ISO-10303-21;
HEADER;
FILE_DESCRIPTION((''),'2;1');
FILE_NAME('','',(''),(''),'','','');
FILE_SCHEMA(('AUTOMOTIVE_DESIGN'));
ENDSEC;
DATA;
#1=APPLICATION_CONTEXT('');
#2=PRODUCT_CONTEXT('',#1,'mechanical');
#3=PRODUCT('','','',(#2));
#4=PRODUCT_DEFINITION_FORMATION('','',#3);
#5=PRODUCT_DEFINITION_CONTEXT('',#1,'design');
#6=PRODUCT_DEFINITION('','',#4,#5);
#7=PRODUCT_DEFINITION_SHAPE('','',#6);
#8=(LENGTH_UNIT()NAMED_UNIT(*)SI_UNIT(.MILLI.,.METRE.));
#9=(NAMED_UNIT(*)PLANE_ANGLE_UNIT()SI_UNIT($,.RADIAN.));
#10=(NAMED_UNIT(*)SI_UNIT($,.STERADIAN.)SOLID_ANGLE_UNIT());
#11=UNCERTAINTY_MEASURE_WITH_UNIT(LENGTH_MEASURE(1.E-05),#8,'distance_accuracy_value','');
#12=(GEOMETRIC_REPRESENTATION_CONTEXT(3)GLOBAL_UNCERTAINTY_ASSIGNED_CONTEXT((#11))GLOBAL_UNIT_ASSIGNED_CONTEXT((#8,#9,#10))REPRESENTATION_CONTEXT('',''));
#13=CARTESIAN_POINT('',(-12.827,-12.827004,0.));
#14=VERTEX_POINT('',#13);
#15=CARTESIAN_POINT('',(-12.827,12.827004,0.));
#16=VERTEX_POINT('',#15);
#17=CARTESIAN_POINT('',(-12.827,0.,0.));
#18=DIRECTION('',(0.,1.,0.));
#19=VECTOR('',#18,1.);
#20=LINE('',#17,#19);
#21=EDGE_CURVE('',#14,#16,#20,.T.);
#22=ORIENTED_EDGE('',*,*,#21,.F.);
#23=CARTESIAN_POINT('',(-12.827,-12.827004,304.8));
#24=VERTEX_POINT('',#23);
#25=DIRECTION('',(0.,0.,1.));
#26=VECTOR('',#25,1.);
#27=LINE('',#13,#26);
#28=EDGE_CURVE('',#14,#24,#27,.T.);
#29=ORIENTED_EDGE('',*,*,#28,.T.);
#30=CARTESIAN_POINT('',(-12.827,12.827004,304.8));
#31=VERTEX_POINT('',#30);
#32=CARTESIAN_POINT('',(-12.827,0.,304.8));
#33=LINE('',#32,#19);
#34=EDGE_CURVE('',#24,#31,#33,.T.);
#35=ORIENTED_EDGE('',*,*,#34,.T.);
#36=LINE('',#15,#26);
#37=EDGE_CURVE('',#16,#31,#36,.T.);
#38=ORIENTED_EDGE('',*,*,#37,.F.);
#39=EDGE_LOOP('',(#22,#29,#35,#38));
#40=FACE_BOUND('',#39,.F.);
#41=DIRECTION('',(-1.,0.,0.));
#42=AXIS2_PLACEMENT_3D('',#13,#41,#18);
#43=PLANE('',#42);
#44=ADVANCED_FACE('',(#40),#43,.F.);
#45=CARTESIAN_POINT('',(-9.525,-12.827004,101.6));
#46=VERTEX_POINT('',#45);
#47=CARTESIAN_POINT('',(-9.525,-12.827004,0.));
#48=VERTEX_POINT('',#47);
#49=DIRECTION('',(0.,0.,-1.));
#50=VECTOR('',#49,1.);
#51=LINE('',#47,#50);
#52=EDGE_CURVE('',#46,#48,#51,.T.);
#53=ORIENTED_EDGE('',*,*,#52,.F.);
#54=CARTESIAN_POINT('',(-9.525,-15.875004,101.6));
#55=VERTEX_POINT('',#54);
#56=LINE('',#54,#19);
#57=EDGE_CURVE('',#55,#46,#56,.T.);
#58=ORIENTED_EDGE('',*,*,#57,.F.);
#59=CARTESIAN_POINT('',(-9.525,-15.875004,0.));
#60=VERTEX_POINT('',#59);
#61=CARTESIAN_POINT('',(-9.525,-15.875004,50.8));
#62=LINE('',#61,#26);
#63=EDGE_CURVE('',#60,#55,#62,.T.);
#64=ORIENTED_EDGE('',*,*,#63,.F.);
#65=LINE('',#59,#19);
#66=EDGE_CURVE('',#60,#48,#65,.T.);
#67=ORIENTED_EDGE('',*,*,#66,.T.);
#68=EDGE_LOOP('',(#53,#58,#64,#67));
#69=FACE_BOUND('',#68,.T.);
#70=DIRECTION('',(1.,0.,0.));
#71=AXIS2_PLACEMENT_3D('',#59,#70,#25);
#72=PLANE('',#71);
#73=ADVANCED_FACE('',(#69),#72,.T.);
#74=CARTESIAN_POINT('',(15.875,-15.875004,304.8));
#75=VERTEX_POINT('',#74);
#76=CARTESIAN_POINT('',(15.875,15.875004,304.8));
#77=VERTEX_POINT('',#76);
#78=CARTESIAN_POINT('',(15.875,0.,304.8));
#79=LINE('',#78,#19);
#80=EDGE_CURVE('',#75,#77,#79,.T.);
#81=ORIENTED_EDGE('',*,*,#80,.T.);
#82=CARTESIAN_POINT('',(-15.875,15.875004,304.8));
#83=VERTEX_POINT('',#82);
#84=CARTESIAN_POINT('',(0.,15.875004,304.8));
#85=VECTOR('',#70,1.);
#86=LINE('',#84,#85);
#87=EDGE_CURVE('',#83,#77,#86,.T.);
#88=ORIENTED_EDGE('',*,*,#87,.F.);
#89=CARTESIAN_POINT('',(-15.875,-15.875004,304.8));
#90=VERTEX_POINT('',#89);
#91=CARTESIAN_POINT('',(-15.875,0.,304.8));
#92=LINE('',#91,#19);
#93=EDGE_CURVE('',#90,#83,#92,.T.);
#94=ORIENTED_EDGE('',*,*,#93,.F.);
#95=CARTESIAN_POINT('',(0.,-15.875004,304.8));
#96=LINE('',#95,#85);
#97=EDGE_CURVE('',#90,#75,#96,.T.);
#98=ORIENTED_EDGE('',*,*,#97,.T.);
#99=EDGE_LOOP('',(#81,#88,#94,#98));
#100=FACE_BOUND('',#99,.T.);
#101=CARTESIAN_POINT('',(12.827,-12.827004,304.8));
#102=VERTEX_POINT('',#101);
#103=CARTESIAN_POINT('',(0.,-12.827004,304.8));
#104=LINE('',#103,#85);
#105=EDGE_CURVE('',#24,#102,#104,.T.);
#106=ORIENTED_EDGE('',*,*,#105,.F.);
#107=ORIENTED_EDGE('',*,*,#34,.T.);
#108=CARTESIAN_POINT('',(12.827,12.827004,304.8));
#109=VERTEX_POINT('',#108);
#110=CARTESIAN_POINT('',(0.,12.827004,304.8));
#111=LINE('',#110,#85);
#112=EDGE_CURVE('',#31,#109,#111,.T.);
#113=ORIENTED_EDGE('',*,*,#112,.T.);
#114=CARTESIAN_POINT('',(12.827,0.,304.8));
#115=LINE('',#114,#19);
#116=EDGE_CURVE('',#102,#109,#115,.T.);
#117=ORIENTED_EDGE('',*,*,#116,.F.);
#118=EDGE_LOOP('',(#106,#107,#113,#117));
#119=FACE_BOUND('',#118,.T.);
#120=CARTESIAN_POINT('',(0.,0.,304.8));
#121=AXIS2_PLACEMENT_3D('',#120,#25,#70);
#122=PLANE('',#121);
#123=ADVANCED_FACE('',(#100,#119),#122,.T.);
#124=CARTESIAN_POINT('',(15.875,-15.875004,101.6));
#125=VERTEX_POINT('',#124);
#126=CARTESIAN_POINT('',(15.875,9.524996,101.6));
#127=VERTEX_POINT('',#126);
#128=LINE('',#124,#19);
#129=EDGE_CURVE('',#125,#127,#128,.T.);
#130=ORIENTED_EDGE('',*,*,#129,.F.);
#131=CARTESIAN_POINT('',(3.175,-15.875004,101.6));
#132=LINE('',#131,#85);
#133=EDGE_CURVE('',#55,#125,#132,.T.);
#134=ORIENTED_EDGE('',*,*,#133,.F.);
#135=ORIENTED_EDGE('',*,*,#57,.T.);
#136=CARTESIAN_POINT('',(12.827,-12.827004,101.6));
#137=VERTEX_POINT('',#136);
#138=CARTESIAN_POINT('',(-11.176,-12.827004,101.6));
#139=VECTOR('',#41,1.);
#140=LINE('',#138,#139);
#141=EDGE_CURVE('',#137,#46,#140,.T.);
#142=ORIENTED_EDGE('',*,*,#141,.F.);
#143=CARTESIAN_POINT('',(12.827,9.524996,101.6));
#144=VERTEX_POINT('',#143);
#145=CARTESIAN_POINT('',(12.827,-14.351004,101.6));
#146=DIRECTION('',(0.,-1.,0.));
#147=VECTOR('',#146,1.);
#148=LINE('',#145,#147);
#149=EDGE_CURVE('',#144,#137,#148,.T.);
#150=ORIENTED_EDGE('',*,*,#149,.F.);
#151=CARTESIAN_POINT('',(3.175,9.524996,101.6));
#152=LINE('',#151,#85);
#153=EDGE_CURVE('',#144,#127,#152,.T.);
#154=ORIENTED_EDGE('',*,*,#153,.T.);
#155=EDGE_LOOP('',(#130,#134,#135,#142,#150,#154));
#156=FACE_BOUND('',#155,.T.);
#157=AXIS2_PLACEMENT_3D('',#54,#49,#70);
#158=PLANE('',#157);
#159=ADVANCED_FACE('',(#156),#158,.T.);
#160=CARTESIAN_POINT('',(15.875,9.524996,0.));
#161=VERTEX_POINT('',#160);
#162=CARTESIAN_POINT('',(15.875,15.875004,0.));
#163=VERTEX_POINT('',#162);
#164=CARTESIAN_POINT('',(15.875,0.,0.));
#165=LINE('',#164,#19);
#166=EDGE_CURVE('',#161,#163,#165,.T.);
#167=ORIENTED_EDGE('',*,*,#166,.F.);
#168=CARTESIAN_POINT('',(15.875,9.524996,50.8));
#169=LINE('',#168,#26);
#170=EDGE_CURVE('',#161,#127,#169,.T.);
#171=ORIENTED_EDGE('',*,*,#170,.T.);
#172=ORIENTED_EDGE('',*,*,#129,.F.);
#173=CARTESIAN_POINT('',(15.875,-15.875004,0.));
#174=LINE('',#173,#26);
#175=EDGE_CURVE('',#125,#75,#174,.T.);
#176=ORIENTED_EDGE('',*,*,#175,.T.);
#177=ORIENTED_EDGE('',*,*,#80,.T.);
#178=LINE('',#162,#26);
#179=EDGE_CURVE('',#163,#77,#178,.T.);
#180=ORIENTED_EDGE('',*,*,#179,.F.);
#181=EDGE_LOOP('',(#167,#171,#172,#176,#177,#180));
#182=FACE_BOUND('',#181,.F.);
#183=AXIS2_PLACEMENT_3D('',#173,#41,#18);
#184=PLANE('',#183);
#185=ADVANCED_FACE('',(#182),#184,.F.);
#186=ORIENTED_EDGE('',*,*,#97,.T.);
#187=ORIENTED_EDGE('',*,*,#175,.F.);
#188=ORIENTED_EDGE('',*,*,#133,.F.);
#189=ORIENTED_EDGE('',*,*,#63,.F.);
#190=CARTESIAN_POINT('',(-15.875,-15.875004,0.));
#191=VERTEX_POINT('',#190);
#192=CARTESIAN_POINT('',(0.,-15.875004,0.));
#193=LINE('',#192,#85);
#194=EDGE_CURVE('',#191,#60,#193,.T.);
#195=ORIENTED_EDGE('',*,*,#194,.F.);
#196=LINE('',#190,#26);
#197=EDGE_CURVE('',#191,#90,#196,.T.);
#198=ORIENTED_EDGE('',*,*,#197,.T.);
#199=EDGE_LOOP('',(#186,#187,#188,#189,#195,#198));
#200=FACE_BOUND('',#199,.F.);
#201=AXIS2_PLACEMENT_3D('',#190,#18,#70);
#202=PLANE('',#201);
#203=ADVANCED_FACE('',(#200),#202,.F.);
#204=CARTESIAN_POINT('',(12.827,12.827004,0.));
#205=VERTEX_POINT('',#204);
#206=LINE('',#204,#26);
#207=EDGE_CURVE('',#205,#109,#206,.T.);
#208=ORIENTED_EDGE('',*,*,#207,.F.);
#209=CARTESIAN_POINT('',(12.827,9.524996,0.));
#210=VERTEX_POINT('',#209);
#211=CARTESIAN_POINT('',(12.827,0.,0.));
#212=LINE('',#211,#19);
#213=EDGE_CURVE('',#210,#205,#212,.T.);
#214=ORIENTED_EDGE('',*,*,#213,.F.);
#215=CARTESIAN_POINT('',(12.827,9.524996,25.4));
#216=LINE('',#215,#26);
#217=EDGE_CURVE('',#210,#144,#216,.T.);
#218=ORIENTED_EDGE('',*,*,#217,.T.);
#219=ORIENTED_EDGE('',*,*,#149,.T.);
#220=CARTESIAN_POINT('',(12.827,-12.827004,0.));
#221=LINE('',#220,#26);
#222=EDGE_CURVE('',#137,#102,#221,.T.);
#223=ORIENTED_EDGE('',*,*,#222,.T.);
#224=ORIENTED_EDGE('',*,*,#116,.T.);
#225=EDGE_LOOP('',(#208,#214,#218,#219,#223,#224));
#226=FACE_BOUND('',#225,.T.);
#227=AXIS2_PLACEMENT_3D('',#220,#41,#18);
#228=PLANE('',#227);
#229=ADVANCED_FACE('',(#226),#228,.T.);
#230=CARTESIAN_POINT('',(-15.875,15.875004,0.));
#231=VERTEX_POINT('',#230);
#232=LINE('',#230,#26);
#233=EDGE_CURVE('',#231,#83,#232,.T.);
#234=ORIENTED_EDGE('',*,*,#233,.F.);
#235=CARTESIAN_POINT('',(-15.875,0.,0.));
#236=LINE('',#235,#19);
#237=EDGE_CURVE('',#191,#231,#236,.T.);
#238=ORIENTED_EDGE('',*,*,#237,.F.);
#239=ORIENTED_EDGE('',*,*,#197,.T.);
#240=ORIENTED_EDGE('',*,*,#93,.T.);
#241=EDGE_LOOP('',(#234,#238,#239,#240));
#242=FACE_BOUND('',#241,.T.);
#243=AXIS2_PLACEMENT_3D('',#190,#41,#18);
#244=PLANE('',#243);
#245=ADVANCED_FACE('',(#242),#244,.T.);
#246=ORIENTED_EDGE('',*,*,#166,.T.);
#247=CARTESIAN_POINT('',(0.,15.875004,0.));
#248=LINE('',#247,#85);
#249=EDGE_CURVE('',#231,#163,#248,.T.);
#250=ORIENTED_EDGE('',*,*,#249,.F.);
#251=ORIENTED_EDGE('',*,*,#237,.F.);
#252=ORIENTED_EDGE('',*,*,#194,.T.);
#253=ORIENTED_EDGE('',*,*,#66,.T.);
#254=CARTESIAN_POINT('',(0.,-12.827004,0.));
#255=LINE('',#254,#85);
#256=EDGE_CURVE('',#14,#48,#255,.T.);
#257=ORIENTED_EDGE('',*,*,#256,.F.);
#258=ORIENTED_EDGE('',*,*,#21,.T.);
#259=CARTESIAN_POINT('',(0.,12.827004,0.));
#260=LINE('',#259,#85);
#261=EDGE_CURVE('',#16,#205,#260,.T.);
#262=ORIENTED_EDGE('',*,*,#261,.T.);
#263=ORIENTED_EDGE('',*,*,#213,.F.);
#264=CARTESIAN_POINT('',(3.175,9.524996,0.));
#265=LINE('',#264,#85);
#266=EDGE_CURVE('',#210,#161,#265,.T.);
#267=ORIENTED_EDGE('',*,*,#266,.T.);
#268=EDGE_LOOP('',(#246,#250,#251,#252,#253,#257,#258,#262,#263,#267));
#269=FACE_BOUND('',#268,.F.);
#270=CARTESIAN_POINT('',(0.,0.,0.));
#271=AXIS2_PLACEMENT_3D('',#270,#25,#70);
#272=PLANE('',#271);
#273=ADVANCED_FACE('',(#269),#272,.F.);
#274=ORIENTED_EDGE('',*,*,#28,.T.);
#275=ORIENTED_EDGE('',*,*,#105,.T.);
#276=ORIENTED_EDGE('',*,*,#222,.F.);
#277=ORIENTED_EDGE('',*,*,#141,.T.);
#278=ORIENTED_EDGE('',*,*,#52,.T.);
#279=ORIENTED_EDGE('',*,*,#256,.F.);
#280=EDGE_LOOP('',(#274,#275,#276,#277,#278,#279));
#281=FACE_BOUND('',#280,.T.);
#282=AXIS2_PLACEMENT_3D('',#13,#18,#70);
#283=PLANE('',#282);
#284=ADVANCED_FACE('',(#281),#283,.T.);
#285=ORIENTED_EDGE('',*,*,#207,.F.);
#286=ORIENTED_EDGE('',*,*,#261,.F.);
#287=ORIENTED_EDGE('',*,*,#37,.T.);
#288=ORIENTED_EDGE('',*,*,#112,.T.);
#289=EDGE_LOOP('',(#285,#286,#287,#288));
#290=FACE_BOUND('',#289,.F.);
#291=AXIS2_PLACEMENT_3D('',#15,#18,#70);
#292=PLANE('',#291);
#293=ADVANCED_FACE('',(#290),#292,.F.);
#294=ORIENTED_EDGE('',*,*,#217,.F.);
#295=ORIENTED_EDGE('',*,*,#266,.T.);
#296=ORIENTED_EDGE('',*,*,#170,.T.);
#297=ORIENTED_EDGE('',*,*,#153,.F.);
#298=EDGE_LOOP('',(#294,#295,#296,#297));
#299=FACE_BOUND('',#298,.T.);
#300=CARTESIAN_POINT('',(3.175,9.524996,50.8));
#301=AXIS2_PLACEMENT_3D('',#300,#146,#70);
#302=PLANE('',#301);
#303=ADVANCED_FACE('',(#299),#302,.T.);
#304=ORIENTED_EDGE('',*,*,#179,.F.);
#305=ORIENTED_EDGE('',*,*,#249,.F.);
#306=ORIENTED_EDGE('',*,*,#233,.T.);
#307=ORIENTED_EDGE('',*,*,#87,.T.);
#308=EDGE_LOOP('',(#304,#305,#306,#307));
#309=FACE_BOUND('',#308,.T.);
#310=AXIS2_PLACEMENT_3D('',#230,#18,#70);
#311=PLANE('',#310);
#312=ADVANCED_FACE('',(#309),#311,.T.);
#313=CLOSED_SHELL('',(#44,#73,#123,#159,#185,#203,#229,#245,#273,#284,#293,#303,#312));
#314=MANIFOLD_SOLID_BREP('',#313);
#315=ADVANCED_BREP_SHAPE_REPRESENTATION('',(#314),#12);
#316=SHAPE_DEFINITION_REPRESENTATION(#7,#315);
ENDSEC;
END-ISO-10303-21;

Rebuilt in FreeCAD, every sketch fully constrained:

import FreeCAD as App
import Part
import Sketcher

V = App.Vector
Q = App.Units.Quantity

doc = App.newDocument("Part")
body = doc.addObject("PartDesign::Body", "Body")

# Sketch on XY plane
sketch1 = body.newObject("Sketcher::SketchObject", "Sketch")
sketch1.AttachmentSupport = (doc.getObject("XY_Plane"), [""])
sketch1.MapMode = "FlatFace"
sketch1.addGeometry(Part.LineSegment(V(-16, 16, 0), V(-16, -16, 0)), False)
sketch1.addGeometry(Part.LineSegment(V(-16, -16, 0), V(16, -16, 0)), False)
sketch1.addGeometry(Part.LineSegment(V(16, -16, 0), V(16, 16, 0)), False)
sketch1.addGeometry(Part.LineSegment(V(16, 16, 0), V(-16, 16, 0)), False)
sketch1.addGeometry(Part.LineSegment(V(13, -13, 0), V(-13, -13, 0)), False)
sketch1.addGeometry(Part.LineSegment(V(-13, -13, 0), V(-13, 13, 0)), False)
sketch1.addGeometry(Part.LineSegment(V(-13, 13, 0), V(13, 13, 0)), False)
sketch1.addGeometry(Part.LineSegment(V(13, 13, 0), V(13, -13, 0)), False)
sketch1.addConstraint(Sketcher.Constraint("Coincident", 0, 2, 1, 1))
sketch1.addConstraint(Sketcher.Constraint("Coincident", 1, 2, 2, 1))
sketch1.addConstraint(Sketcher.Constraint("Coincident", 2, 2, 3, 1))
sketch1.addConstraint(Sketcher.Constraint("Coincident", 3, 2, 0, 1))
sketch1.addConstraint(Sketcher.Constraint("Coincident", 4, 2, 5, 1))
sketch1.addConstraint(Sketcher.Constraint("Coincident", 5, 2, 6, 1))
sketch1.addConstraint(Sketcher.Constraint("Coincident", 6, 2, 7, 1))
sketch1.addConstraint(Sketcher.Constraint("Coincident", 7, 2, 4, 1))
sketch1.addConstraint(Sketcher.Constraint("Vertical", 0))
sketch1.addConstraint(Sketcher.Constraint("Horizontal", 1))
sketch1.addConstraint(Sketcher.Constraint("Vertical", 2))
sketch1.addConstraint(Sketcher.Constraint("Horizontal", 3))
sketch1.addConstraint(Sketcher.Constraint("Horizontal", 4))
sketch1.addConstraint(Sketcher.Constraint("Vertical", 5))
sketch1.addConstraint(Sketcher.Constraint("Horizontal", 6))
sketch1.addConstraint(Sketcher.Constraint("Vertical", 7))
sketch1.addConstraint(Sketcher.Constraint("Symmetric", 0, 2, 2, 2, -1, 1))
sketch1.addConstraint(Sketcher.Constraint("Symmetric", 4, 2, 6, 2, -1, 1))
sketch1.addConstraint(Sketcher.Constraint("DistanceX", 1, 1, 1, 2, Q("1.25 in")))
sketch1.addConstraint(Sketcher.Constraint("DistanceX", 4, 2, 4, 1, Q("1.01 in")))
sketch1.addConstraint(Sketcher.Constraint("DistanceY", 0, 2, 4, 2, Q("0.12 in")))
sketch1.addConstraint(Sketcher.Constraint("DistanceY", 0, 2, -1, 1, Q("0.6250002 in")))
pad1 = body.newObject("PartDesign::Pad", "Pad")
pad1.Profile = sketch1
pad1.Length = Q("12 in")

# Sketch on XZ plane
sketch2 = body.newObject("Sketcher::SketchObject", "Sketch001")
sketch2.AttachmentSupport = (doc.getObject("XZ_Plane"), [""])
sketch2.MapMode = "FlatFace"
sketch2.AttachmentOffset = App.Placement(V(0, 0, 0.6250002 * 25.4), App.Rotation())
sketch2.addGeometry(Part.LineSegment(V(-10, 102, 0), V(-10, 0, 0)), False)
sketch2.addGeometry(Part.LineSegment(V(-10, 0, 0), V(16, 0, 0)), False)
sketch2.addGeometry(Part.LineSegment(V(16, 0, 0), V(16, 102, 0)), False)
sketch2.addGeometry(Part.LineSegment(V(16, 102, 0), V(-10, 102, 0)), False)
sketch2.addConstraint(Sketcher.Constraint("Coincident", 0, 2, 1, 1))
sketch2.addConstraint(Sketcher.Constraint("Coincident", 1, 2, 2, 1))
sketch2.addConstraint(Sketcher.Constraint("Coincident", 2, 2, 3, 1))
sketch2.addConstraint(Sketcher.Constraint("Coincident", 3, 2, 0, 1))
sketch2.addConstraint(Sketcher.Constraint("Vertical", 0))
sketch2.addConstraint(Sketcher.Constraint("Horizontal", 1))
sketch2.addConstraint(Sketcher.Constraint("Vertical", 2))
sketch2.addConstraint(Sketcher.Constraint("Horizontal", 3))
sketch2.addConstraint(Sketcher.Constraint("PointOnObject", 0, 2, -1))
sketch2.addConstraint(Sketcher.Constraint("DistanceX", 1, 1, 1, 2, Q("1 in")))
sketch2.addConstraint(Sketcher.Constraint("DistanceY", 0, 2, 0, 1, Q("4 in")))
sketch2.addConstraint(Sketcher.Constraint("DistanceX", 0, 2, -1, 1, Q("0.375 in")))
pocket1 = body.newObject("PartDesign::Pocket", "Pocket")
pocket1.Profile = sketch2
pocket1.Length = Q("1 in")

doc.recompute()
